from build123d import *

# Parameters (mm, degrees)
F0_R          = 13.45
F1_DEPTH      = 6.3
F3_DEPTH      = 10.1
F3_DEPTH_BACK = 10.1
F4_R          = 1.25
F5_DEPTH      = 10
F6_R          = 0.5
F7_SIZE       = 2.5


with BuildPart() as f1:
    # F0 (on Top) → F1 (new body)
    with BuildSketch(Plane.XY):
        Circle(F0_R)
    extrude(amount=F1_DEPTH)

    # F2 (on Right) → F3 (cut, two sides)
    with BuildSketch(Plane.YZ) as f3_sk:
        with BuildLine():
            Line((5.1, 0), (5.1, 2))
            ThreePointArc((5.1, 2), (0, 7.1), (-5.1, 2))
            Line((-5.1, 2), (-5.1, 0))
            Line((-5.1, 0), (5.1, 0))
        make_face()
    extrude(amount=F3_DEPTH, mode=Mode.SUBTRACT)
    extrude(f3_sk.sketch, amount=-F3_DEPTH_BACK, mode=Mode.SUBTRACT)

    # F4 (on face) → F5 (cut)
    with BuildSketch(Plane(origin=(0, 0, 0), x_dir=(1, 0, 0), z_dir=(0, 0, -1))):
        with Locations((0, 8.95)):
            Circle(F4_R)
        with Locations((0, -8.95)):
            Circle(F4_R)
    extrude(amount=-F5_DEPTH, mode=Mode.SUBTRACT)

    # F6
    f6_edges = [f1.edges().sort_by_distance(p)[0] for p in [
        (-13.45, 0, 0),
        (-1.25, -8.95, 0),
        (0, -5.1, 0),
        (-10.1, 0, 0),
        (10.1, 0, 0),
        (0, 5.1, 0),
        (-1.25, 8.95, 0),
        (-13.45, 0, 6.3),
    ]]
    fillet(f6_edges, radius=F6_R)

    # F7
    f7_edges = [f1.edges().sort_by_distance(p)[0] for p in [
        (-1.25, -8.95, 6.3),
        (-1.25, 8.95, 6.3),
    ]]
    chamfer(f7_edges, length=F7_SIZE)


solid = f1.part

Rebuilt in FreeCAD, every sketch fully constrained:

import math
import FreeCAD as App
import Part
import Sketcher
Q = App.Units.Quantity


def edges_at(feature, points):
    """Names of the edges that pass closest to the given points."""
    edges = feature.Shape.Edges
    near = lambda p: min(range(len(edges)), key=lambda i: edges[i].distToShape(Part.Vertex(*p))[0])
    return sorted({f"Edge{near(p) + 1}" for p in points})

doc = App.newDocument("Part")
body = doc.addObject("PartDesign::Body", "Body")

sketch1 = body.newObject("Sketcher::SketchObject", "Sketch")
sketch1.AttachmentSupport = (doc.getObject("XY_Plane"), [""])
sketch1.MapMode = "FlatFace"
sketch1.addGeometry(Part.Circle(App.Vector(0, 0, 0), App.Vector(0, 0, 1), 13), False)
sketch1.addConstraint([
    Sketcher.Constraint("Coincident", 0, 3, -1, 1),
    Sketcher.Constraint("Diameter", 0, Q("26.9 mm")),
])
pad1 = body.newObject("PartDesign::Pad", "Pad")
pad1.Profile = sketch1
pad1.Length = 6.3

sketch2 = body.newObject("Sketcher::SketchObject", "Sketch001")
sketch2.AttachmentSupport = (doc.getObject("YZ_Plane"), [""])
sketch2.MapMode = "FlatFace"
sketch2.addGeometry([
    Part.LineSegment(App.Vector(5.1, 0, 0), App.Vector(5.1, 2, 0)),
    Part.ArcOfCircle(Part.Circle(App.Vector(0, 2, 0), App.Vector(0, 0, 1), 5.1), math.radians(0), math.radians(180)),
    Part.LineSegment(App.Vector(-5.1, 2, 0), App.Vector(-5.1, 0, 0)),
    Part.LineSegment(App.Vector(-5.1, 0, 0), App.Vector(5.1, 0, 0)),
], False)
sketch2.addConstraint([
    Sketcher.Constraint("Tangent", 0, 2, 1, 1),
    Sketcher.Constraint("Tangent", 1, 2, 2, 1),
    Sketcher.Constraint("Coincident", 2, 2, 3, 1),
    Sketcher.Constraint("Coincident", 3, 2, 0, 1),
    Sketcher.Constraint("Vertical", 0),
    Sketcher.Constraint("Vertical", 2),
    Sketcher.Constraint("Horizontal", 3),
    Sketcher.Constraint("Symmetric", 2, 2, 3, 2, -1, 1),
    Sketcher.Constraint("Radius", 1, Q("5.1 mm")),
    Sketcher.Constraint("DistanceY", 0, 1, 0, 2, Q("2 mm")),
])
pocket1 = body.newObject("PartDesign::Pocket", "Pocket")
pocket1.Profile = sketch2
pocket1.Type = "TwoLengths"
pocket1.Length = 10.1
pocket1.Length2 = 10.1
pocket1.Reversed = True

sketch3 = body.newObject("Sketcher::SketchObject", "Sketch002")
sketch3.AttachmentSupport = (doc.getObject("XY_Plane"), [""])
sketch3.MapMode = "FlatFace"
sketch3.addGeometry([
    Part.Circle(App.Vector(0, -8.9, 0), App.Vector(0, 0, 1), 1.2),
    Part.Circle(App.Vector(0, 8.9, 0), App.Vector(0, 0, 1), 1.2),
], False)
sketch3.addConstraint([
    Sketcher.Constraint("Equal", 0, 1),
    Sketcher.Constraint("Symmetric", 0, 3, 1, 3, -1, 1),
    Sketcher.Constraint("PointOnObject", 0, 3, -2),
    Sketcher.Constraint("Diameter", 0, Q("2.5 mm")),
    Sketcher.Constraint("DistanceY", 0, 3, 1, 3, Q("17.9 mm")),
])
pocket2 = body.newObject("PartDesign::Pocket", "Pocket001")
pocket2.Profile = sketch3
pocket2.Length = 10
pocket2.Reversed = True
doc.recompute()

fillet = body.newObject("PartDesign::Fillet", "Fillet")
fillet.Base = (pocket2, edges_at(pocket2, [
    (-13.45, 0, 0),
    (-1.25, -8.95, 0),
    (0, -5.1, 0),
    (-10.1, 0, 0),
    (10.1, 0, 0),
    (0, 5.1, 0),
    (-1.25, 8.95, 0),
    (-13.45, 0, 6.3),
]))
fillet.Radius = 0.5
doc.recompute()

chamfer = body.newObject("PartDesign::Chamfer", "Chamfer")
chamfer.Base = (fillet, edges_at(fillet, [(-1.25, -8.95, 6.3), (-1.25, 8.95, 6.3)]))
chamfer.Size = 2.5

doc.recompute()
